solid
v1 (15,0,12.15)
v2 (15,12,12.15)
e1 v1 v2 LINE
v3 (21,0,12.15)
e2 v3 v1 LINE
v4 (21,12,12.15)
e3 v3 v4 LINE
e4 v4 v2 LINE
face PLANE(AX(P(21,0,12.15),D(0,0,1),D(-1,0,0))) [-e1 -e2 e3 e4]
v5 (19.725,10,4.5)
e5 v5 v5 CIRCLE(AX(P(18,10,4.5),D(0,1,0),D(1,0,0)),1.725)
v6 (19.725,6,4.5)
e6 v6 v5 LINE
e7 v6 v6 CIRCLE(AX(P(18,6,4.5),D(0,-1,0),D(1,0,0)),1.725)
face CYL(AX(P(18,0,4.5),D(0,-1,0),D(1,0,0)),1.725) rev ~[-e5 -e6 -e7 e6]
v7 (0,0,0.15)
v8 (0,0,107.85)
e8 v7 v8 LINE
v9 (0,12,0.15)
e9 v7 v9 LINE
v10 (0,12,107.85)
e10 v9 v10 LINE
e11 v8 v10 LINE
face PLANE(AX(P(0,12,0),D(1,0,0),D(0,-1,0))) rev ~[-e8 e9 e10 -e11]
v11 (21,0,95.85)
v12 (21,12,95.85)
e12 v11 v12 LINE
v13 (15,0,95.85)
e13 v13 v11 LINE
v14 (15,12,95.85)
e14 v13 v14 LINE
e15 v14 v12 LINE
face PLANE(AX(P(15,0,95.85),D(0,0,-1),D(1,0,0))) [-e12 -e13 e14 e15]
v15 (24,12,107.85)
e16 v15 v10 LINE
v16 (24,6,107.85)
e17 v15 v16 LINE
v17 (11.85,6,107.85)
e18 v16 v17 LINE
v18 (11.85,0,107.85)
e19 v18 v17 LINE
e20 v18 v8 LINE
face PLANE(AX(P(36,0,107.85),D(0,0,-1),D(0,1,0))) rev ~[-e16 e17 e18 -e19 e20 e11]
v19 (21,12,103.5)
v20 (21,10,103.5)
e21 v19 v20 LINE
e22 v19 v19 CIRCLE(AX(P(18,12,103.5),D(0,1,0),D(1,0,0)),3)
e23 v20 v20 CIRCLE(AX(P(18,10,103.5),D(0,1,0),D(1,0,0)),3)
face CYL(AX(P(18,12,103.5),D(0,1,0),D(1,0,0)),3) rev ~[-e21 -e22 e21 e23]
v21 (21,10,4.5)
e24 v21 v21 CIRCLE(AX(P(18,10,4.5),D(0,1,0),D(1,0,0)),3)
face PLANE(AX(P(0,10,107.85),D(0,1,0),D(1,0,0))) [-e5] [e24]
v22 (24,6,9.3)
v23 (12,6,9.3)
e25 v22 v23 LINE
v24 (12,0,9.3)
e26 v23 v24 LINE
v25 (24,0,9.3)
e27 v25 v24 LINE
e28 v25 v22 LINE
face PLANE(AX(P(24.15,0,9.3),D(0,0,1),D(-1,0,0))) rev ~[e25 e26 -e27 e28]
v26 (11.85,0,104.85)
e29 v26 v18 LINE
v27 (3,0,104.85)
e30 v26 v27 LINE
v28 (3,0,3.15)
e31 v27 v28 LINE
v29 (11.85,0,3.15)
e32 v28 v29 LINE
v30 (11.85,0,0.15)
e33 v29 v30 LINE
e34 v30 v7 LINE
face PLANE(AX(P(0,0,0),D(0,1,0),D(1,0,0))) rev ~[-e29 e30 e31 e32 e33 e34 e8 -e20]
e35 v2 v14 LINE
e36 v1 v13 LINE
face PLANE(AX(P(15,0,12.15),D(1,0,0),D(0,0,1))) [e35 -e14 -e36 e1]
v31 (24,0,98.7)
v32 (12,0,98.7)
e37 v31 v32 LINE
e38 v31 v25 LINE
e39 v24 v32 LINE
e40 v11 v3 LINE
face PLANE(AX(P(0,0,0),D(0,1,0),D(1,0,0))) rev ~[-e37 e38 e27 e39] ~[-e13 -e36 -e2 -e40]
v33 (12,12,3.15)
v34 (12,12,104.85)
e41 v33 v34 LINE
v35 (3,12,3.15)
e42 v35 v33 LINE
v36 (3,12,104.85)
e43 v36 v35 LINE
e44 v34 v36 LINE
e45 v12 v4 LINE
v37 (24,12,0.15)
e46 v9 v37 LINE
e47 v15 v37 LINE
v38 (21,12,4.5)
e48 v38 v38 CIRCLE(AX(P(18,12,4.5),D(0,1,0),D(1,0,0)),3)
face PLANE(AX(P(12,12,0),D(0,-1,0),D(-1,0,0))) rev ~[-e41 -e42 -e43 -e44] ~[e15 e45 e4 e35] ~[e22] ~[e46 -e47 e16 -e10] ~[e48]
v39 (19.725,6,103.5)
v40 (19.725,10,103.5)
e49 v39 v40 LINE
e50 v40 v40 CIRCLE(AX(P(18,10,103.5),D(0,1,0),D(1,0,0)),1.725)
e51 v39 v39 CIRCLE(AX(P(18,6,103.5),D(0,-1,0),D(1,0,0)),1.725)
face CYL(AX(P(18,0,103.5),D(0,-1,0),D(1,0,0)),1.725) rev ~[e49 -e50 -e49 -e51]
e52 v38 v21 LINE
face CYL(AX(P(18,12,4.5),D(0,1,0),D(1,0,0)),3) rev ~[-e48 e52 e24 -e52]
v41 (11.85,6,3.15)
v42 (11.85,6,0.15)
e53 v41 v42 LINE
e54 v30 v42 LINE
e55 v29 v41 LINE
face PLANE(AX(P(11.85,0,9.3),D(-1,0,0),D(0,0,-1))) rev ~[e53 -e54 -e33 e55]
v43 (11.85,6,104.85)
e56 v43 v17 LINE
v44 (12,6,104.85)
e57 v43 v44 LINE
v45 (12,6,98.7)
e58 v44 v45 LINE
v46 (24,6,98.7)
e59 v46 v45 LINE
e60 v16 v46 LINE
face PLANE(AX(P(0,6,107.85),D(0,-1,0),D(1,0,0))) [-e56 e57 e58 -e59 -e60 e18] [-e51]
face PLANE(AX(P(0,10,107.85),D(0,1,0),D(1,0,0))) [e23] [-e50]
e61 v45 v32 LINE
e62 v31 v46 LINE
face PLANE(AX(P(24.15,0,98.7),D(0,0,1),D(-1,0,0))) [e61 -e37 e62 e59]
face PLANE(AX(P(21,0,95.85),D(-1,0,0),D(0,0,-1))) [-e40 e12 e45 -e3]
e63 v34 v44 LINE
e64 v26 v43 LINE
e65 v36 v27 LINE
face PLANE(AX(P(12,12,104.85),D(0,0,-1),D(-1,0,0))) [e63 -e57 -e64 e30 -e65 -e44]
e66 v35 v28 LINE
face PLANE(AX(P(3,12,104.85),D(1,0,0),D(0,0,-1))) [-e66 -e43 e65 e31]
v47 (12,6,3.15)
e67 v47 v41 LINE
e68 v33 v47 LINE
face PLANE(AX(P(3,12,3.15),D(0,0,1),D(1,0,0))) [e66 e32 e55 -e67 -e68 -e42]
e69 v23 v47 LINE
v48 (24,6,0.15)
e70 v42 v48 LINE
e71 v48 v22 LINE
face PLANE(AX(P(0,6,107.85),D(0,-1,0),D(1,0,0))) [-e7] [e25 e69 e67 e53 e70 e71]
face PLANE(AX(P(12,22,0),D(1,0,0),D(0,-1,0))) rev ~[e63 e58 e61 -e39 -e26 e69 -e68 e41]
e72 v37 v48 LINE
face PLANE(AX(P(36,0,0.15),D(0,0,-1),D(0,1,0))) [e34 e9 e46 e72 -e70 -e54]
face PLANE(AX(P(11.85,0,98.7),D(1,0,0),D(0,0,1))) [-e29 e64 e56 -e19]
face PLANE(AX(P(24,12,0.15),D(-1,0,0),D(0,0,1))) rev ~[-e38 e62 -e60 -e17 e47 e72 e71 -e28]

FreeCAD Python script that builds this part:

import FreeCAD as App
import Part
import Sketcher

V = App.Vector
Q = App.Units.Quantity


def add_polygon(sketch, points):
    """Adds a closed chain of lines whose ends are joined by coincident constraints."""
    first, n = sketch.GeometryCount, len(points)
    for a, b in zip(points, points[1:] + points[:1]):
        sketch.addGeometry(Part.LineSegment(App.Vector(*a, 0), App.Vector(*b, 0)), False)
    for i in range(n):
        sketch.addConstraint(Sketcher.Constraint("Coincident", first + i, 2, first + (i + 1) % n, 1))

doc = App.newDocument("Part")
params = doc.addObject("Spreadsheet::Sheet", "Params")
for row, (alias, value) in enumerate([
    ("sketch1_width", "36 mm"),
    ("sketch1_height", "10 mm"),
    ("pad1_length", "108 mm"),
    ("sketch2_diameter", "3.45 mm"),
    ("pocket1_length", "20 mm"),
    ("sketch3_diameter", "6 mm"),
    ("pocket2_length", "2 mm"),
    ("sketch4_width", "12 mm"),
    ("sketch4_height", "0.15 mm"),
    ("sketch5_height", "0.15 mm"),
    ("sketch5_width", "10 mm"),
    ("sketch6_height", "9.15 mm"),
    ("sketch6_width", "12.3 mm"),
    ("pocket5_length", "6 mm"),
    ("sketch7_width", "6 mm"),
    ("sketch7_height", "83.7 mm"),
    ("sketch8_width", "9 mm"),
    ("sketch8_height", "101.7 mm"),
    ("sketch9_width", "10 mm"),
    ("sketch9_height", "107.7 mm"),
    ("sketch10_diameter", "6 mm"),
    ("sketch10_diameter2", "3.45 mm"),
    ("pocket9_length", "2 mm"),
    ("sketch11_width", "12 mm"),
    ("sketch11_height", "107.7 mm"),
], start=1):
    params.set(f"A{row}", alias)
    params.set(f"B{row}", "=" + value)
    params.setAlias(f"B{row}", alias)

body = doc.addObject("PartDesign::Body", "Body")

# Sketch on XY plane
sketch1 = doc.addObject("Sketcher::SketchObject", "Sketch")
body.addObject(sketch1)
sketch1.AttachmentSupport = (doc.XY_Plane, [""])
sketch1.MapMode = "FlatFace"
add_polygon(sketch1, [(0, 12), (0, 0), (36, 0), (36, 12), (24, 12), (24, 22), (12, 22), (12, 12)])  # lines 0-7
sketch1.addConstraint(Sketcher.Constraint("Vertical", 0))
sketch1.addConstraint(Sketcher.Constraint("Horizontal", 1))
sketch1.addConstraint(Sketcher.Constraint("Vertical", 2))
sketch1.addConstraint(Sketcher.Constraint("Horizontal", 3))
sketch1.addConstraint(Sketcher.Constraint("Vertical", 4))
sketch1.addConstraint(Sketcher.Constraint("Horizontal", 5))
sketch1.addConstraint(Sketcher.Constraint("Vertical", 6))
sketch1.addConstraint(Sketcher.Constraint("Horizontal", 7))
sketch1.addConstraint(Sketcher.Constraint("Coincident", 0, 2, -1, 1))
sketch1.addConstraint(Sketcher.Constraint("Horizontal", 3, 2, 6, 2))
sketch1.addConstraint(Sketcher.Constraint("Equal", 3, 5))
sketch1.addConstraint(Sketcher.Constraint("Equal", 5, 7))
sketch1.addConstraint(Sketcher.Constraint("Equal", 7, 0))
sketch1.addConstraint(Sketcher.Constraint("DistanceX", 1, 1, 1, 2, Q("36 mm")))
sketch1.addConstraint(Sketcher.Constraint("DistanceY", 4, 1, 4, 2, Q("10 mm")))
sketch1.setExpression("Constraints[21]", "Params.sketch1_width")
sketch1.setExpression("Constraints[22]", "Params.sketch1_height")
pad1 = doc.addObject("PartDesign::Pad", "Pad")
body.addObject(pad1)
pad1.Profile = sketch1
pad1.setExpression("Length", "Params.pad1_length")

# Sketch on XZ plane
sketch2 = doc.addObject("Sketcher::SketchObject", "Sketch001")
body.addObject(sketch2)
sketch2.AttachmentSupport = (doc.XZ_Plane, [""])
sketch2.MapMode = "FlatFace"
sketch2.addGeometry(Part.Circle(V(18, 4.5, 0), V(0, 0, 1), 1.725), False)
sketch2.addGeometry(Part.Circle(V(18, 103.5, 0), V(0, 0, 1), 1.725), False)
sketch2.addConstraint(Sketcher.Constraint("Equal", 0, 1))
sketch2.addConstraint(Sketcher.Constraint("Vertical", 0, 3, 1, 3))
sketch2.addConstraint(Sketcher.Constraint("Diameter", 0, Q("3.45 mm")))
sketch2.addConstraint(Sketcher.Constraint("DistanceX", -1, 1, 0, 3, Q("18 mm")))
sketch2.addConstraint(Sketcher.Constraint("DistanceY", -1, 1, 0, 3, Q("4.5 mm")))
sketch2.addConstraint(Sketcher.Constraint("DistanceY", 0, 3, 1, 3, Q("99 mm")))
sketch2.setExpression("Constraints[2]", "Params.sketch2_diameter")
pocket1 = doc.addObject("PartDesign::Pocket", "Pocket")
body.addObject(pocket1)
pocket1.Profile = sketch2
pocket1.setExpression("Length", "Params.pocket1_length")

# Sketch on XZ plane
sketch3 = doc.addObject("Sketcher::SketchObject", "Sketch002")
body.addObject(sketch3)
sketch3.AttachmentSupport = (doc.XZ_Plane, [""])
sketch3.MapMode = "FlatFace"
sketch3.AttachmentOffset = App.Placement(V(0, 0, -22), App.Rotation())
sketch3.addGeometry(Part.Circle(V(18, 4.5, 0), V(0, 0, 1), 3), False)
sketch3.addGeometry(Part.Circle(V(18, 103.5, 0), V(0, 0, 1), 3), False)
sketch3.addConstraint(Sketcher.Constraint("Equal", 0, 1))
sketch3.addConstraint(Sketcher.Constraint("Vertical", 0, 3, 1, 3))
sketch3.addConstraint(Sketcher.Constraint("Diameter", 0, Q("6 mm")))
sketch3.addConstraint(Sketcher.Constraint("DistanceX", -1, 1, 0, 3, Q("18 mm")))
sketch3.addConstraint(Sketcher.Constraint("DistanceY", 0, 3, 1, 3, Q("99 mm")))
sketch3.addConstraint(Sketcher.Constraint("DistanceY", -1, 1, 0, 3, Q("4.5 mm")))
sketch3.setExpression("Constraints[2]", "Params.sketch3_diameter")
pocket2 = doc.addObject("PartDesign::Pocket", "Pocket001")
body.addObject(pocket2)
pocket2.Profile = sketch3
pocket2.setExpression("Length", "Params.pocket2_length")
pocket2.Reversed = True

# Sketch on YZ plane
sketch4 = doc.addObject("Sketcher::SketchObject", "Sketch003")
body.addObject(sketch4)
sketch4.AttachmentSupport = (doc.YZ_Plane, [""])
sketch4.MapMode = "FlatFace"
sketch4.AttachmentOffset = App.Placement(V(0, 0, 36), App.Rotation())
add_polygon(sketch4, [(12, 108), (0, 108), (0, 107.85), (12, 107.85)])  # lines 0-3
add_polygon(sketch4, [(12, 0.15), (0, 0.15), (0, 0), (12, 0)])  # lines 4-7
sketch4.addConstraint(Sketcher.Constraint("Horizontal", 0))
sketch4.addConstraint(Sketcher.Constraint("Vertical", 1))
sketch4.addConstraint(Sketcher.Constraint("Horizontal", 2))
sketch4.addConstraint(Sketcher.Constraint("Vertical", 3))
sketch4.addConstraint(Sketcher.Constraint("Horizontal", 4))
sketch4.addConstraint(Sketcher.Constraint("Vertical", 5))
sketch4.addConstraint(Sketcher.Constraint("Horizontal", 6))
sketch4.addConstraint(Sketcher.Constraint("Vertical", 7))
sketch4.addConstraint(Sketcher.Constraint("Coincident", 5, 2, -1, 1))
sketch4.addConstraint(Sketcher.Constraint("PointOnObject", 0, 2, -2))
sketch4.addConstraint(Sketcher.Constraint("Vertical", 3, 2, 6, 2))
sketch4.addConstraint(Sketcher.Constraint("Equal", 3, 5))
sketch4.addConstraint(Sketcher.Constraint("DistanceX", 0, 2, 0, 1, Q("12 mm")))
sketch4.addConstraint(Sketcher.Constraint("DistanceY", 1, 2, 1, 1, Q("0.15 mm")))
sketch4.addConstraint(Sketcher.Constraint("DistanceY", -1, 1, 0, 2, Q("108 mm")))
sketch4.setExpression("Constraints[20]", "Params.sketch4_width")
sketch4.setExpression("Constraints[21]", "Params.sketch4_height")
pocket3 = doc.addObject("PartDesign::Pocket", "Pocket002")
body.addObject(pocket3)
pocket3.Profile = sketch4
pocket3.Type = "ThroughAll"

# Sketch on YZ plane
sketch5 = doc.addObject("Sketcher::SketchObject", "Sketch004")
body.addObject(sketch5)
sketch5.AttachmentSupport = (doc.YZ_Plane, [""])
sketch5.MapMode = "FlatFace"
sketch5.AttachmentOffset = App.Placement(V(0, 0, 24), App.Rotation())
add_polygon(sketch5, [(12, 0.15), (12, 0), (22, 0), (22, 0.15)])  # lines 0-3
add_polygon(sketch5, [(12, 107.85), (22, 107.85), (22, 108), (12, 108)])  # lines 4-7
sketch5.addConstraint(Sketcher.Constraint("Vertical", 0))
sketch5.addConstraint(Sketcher.Constraint("Horizontal", 1))
sketch5.addConstraint(Sketcher.Constraint("Vertical", 2))
sketch5.addConstraint(Sketcher.Constraint("Horizontal", 3))
sketch5.addConstraint(Sketcher.Constraint("Horizontal", 4))
sketch5.addConstraint(Sketcher.Constraint("Vertical", 5))
sketch5.addConstraint(Sketcher.Constraint("Horizontal", 6))
sketch5.addConstraint(Sketcher.Constraint("Vertical", 7))
sketch5.addConstraint(Sketcher.Constraint("PointOnObject", 0, 2, -1))
sketch5.addConstraint(Sketcher.Constraint("Vertical", 2, 2, 4, 2))
sketch5.addConstraint(Sketcher.Constraint("Vertical", 3, 2, 6, 2))
sketch5.addConstraint(Sketcher.Constraint("Equal", 2, 5))
sketch5.addConstraint(Sketcher.Constraint("DistanceY", 0, 2, 0, 1, Q("0.15 mm")))
sketch5.addConstraint(Sketcher.Constraint("DistanceX", 1, 1, 1, 2, Q("10 mm")))
sketch5.addConstraint(Sketcher.Constraint("DistanceX", -1, 1, 0, 2, Q("12 mm")))
sketch5.addConstraint(Sketcher.Constraint("DistanceY", -1, 1, 5, 2, Q("108 mm")))
sketch5.setExpression("Constraints[20]", "Params.sketch5_height")
sketch5.setExpression("Constraints[21]", "Params.sketch5_width")
pocket4 = doc.addObject("PartDesign::Pocket", "Pocket003")
body.addObject(pocket4)
pocket4.Profile = sketch5
pocket4.Type = "ThroughAll"

# Sketch on XZ plane
sketch6 = doc.addObject("Sketcher::SketchObject", "Sketch005")
body.addObject(sketch6)
sketch6.AttachmentSupport = (doc.XZ_Plane, [""])
sketch6.MapMode = "FlatFace"
add_polygon(sketch6, [(11.85, 9.3), (11.85, 0.15), (24.15, 0.15), (24.15, 9.3)])  # lines 0-3
add_polygon(sketch6, [(24.15, 107.85), (11.85, 107.85), (11.85, 98.7), (24.15, 98.7)])  # lines 4-7
sketch6.addConstraint(Sketcher.Constraint("Vertical", 0))
sketch6.addConstraint(Sketcher.Constraint("Horizontal", 1))
sketch6.addConstraint(Sketcher.Constraint("Vertical", 2))
sketch6.addConstraint(Sketcher.Constraint("Horizontal", 3))
sketch6.addConstraint(Sketcher.Constraint("Horizontal", 4))
sketch6.addConstraint(Sketcher.Constraint("Vertical", 5))
sketch6.addConstraint(Sketcher.Constraint("Horizontal", 6))
sketch6.addConstraint(Sketcher.Constraint("Vertical", 7))
sketch6.addConstraint(Sketcher.Constraint("Vertical", 3, 2, 4, 2))
sketch6.addConstraint(Sketcher.Constraint("Vertical", 2, 2, 6, 2))
sketch6.addConstraint(Sketcher.Constraint("Equal", 2, 5))
sketch6.addConstraint(Sketcher.Constraint("DistanceY", 0, 2, 0, 1, Q("9.15 mm")))
sketch6.addConstraint(Sketcher.Constraint("DistanceX", -1, 1, 0, 2, Q("11.85 mm")))
sketch6.addConstraint(Sketcher.Constraint("DistanceX", 1, 1, 1, 2, Q("12.3 mm")))
sketch6.addConstraint(Sketcher.Constraint("DistanceY", -1, 1, 2, 2, Q("9.3 mm")))
sketch6.addConstraint(Sketcher.Constraint("DistanceY", -1, 1, 5, 2, Q("98.7 mm")))
sketch6.setExpression("Constraints[19]", "Params.sketch6_height")
sketch6.setExpression("Constraints[21]", "Params.sketch6_width")
pocket5 = doc.addObject("PartDesign::Pocket", "Pocket004")
body.addObject(pocket5)
pocket5.Profile = sketch6
pocket5.setExpression("Length", "Params.pocket5_length")

# Sketch on XZ plane
sketch7 = doc.addObject("Sketcher::SketchObject", "Sketch006")
body.addObject(sketch7)
sketch7.AttachmentSupport = (doc.XZ_Plane, [""])
sketch7.MapMode = "FlatFace"
add_polygon(sketch7, [(21, 95.85), (15, 95.85), (15, 12.15), (21, 12.15)])  # lines 0-3
sketch7.addConstraint(Sketcher.Constraint("Horizontal", 0))
sketch7.addConstraint(Sketcher.Constraint("Vertical", 1))
sketch7.addConstraint(Sketcher.Constraint("Horizontal", 2))
sketch7.addConstraint(Sketcher.Constraint("Vertical", 3))
sketch7.addConstraint(Sketcher.Constraint("DistanceX", 0, 2, 0, 1, Q("6 mm")))
sketch7.addConstraint(Sketcher.Constraint("DistanceY", 1, 2, 1, 1, Q("83.7 mm")))
sketch7.addConstraint(Sketcher.Constraint("DistanceX", -1, 1, 0, 2, Q("15 mm")))
sketch7.addConstraint(Sketcher.Constraint("DistanceY", -1, 1, 0, 2, Q("95.85 mm")))
sketch7.setExpression("Constraints[8]", "Params.sketch7_width")
sketch7.setExpression("Constraints[9]", "Params.sketch7_height")
pocket6 = doc.addObject("PartDesign::Pocket", "Pocket005")
body.addObject(pocket6)
pocket6.Profile = sketch7
pocket6.Type = "ThroughAll"

# Sketch on XZ plane
sketch8 = doc.addObject("Sketcher::SketchObject", "Sketch007")
body.addObject(sketch8)
sketch8.AttachmentSupport = (doc.XZ_Plane, [""])
sketch8.MapMode = "FlatFace"
sketch8.AttachmentOffset = App.Placement(V(0, 0, -12), App.Rotation())
add_polygon(sketch8, [(24, 104.85), (33, 104.85), (33, 3.15), (24, 3.15)])  # lines 0-3
add_polygon(sketch8, [(3, 104.85), (12, 104.85), (12, 3.15), (3, 3.15)])  # lines 4-7
sketch8.addConstraint(Sketcher.Constraint("Horizontal", 0))
sketch8.addConstraint(Sketcher.Constraint("Vertical", 1))
sketch8.addConstraint(Sketcher.Constraint("Horizontal", 2))
sketch8.addConstraint(Sketcher.Constraint("Vertical", 3))
sketch8.addConstraint(Sketcher.Constraint("Horizontal", 4))
sketch8.addConstraint(Sketcher.Constraint("Vertical", 5))
sketch8.addConstraint(Sketcher.Constraint("Horizontal", 6))
sketch8.addConstraint(Sketcher.Constraint("Vertical", 7))
sketch8.addConstraint(Sketcher.Constraint("Horizontal", 3, 2, 4, 2))
sketch8.addConstraint(Sketcher.Constraint("Horizontal", 2, 2, 5, 2))
sketch8.addConstraint(Sketcher.Constraint("Equal", 2, 4))
sketch8.addConstraint(Sketcher.Constraint("DistanceX", -1, 1, 6, 2, Q("3 mm")))
sketch8.addConstraint(Sketcher.Constraint("DistanceX", 0, 1, 0, 2, Q("9 mm")))
sketch8.addConstraint(Sketcher.Constraint("DistanceY", 1, 2, 1, 1, Q("101.7 mm")))
sketch8.addConstraint(Sketcher.Constraint("DistanceX", -1, 1, 0, 2, Q("33 mm")))
sketch8.addConstraint(Sketcher.Constraint("DistanceY", -1, 1, 0, 2, Q("104.85 mm")))
sketch8.setExpression("Constraints[20]", "Params.sketch8_width")
sketch8.setExpression("Constraints[21]", "Params.sketch8_height")
pocket7 = doc.addObject("PartDesign::Pocket", "Pocket006")
body.addObject(pocket7)
pocket7.Profile = sketch8
pocket7.Type = "ThroughAll"
pocket7.Reversed = True

# Sketch on YZ plane
sketch9 = doc.addObject("Sketcher::SketchObject", "Sketch008")
body.addObject(sketch9)
sketch9.AttachmentSupport = (doc.YZ_Plane, [""])
sketch9.MapMode = "FlatFace"
sketch9.AttachmentOffset = App.Placement(V(0, 0, 24), App.Rotation())
add_polygon(sketch9, [(22, 107.85), (12, 107.85), (12, 0.15), (22, 0.15)])  # lines 0-3
sketch9.addConstraint(Sketcher.Constraint("Horizontal", 0))
sketch9.addConstraint(Sketcher.Constraint("Vertical", 1))
sketch9.addConstraint(Sketcher.Constraint("Horizontal", 2))
sketch9.addConstraint(Sketcher.Constraint("Vertical", 3))
sketch9.addConstraint(Sketcher.Constraint("DistanceX", 0, 2, 0, 1, Q("10 mm")))
sketch9.addConstraint(Sketcher.Constraint("DistanceY", 1, 2, 1, 1, Q("107.7 mm")))
sketch9.addConstraint(Sketcher.Constraint("DistanceX", -1, 1, 0, 2, Q("12 mm")))
sketch9.addConstraint(Sketcher.Constraint("DistanceY", -1, 1, 0, 2, Q("107.85 mm")))
sketch9.setExpression("Constraints[8]", "Params.sketch9_width")
sketch9.setExpression("Constraints[9]", "Params.sketch9_height")
pocket8 = doc.addObject("PartDesign::Pocket", "Pocket007")
body.addObject(pocket8)
pocket8.Profile = sketch9
pocket8.Type = "ThroughAll"

# Sketch on XZ plane
sketch10 = doc.addObject("Sketcher::SketchObject", "Sketch009")
body.addObject(sketch10)
sketch10.AttachmentSupport = (doc.XZ_Plane, [""])
sketch10.MapMode = "FlatFace"
sketch10.AttachmentOffset = App.Placement(V(0, 0, -12), App.Rotation())
sketch10.addGeometry(Part.Circle(V(18, 4.5, 0), V(0, 0, 1), 3), False)
sketch10.addGeometry(Part.Circle(V(18, 4.5, 0), V(0, 0, 1), 1.725), False)
sketch10.addGeometry(Part.Circle(V(18, 103.5, 0), V(0, 0, 1), 3), False)
sketch10.addGeometry(Part.Circle(V(18, 103.5, 0), V(0, 0, 1), 1.725), False)
sketch10.addConstraint(Sketcher.Constraint("Coincident", 1, 3, 0, 3))
sketch10.addConstraint(Sketcher.Constraint("Coincident", 3, 3, 2, 3))
sketch10.addConstraint(Sketcher.Constraint("Equal", 0, 2))
sketch10.addConstraint(Sketcher.Constraint("Equal", 1, 3))
sketch10.addConstraint(Sketcher.Constraint("Vertical", 1, 3, 2, 3))
sketch10.addConstraint(Sketcher.Constraint("Diameter", 0, Q("6 mm")))
sketch10.addConstraint(Sketcher.Constraint("Diameter", 1, Q("3.45 mm")))
sketch10.addConstraint(Sketcher.Constraint("DistanceX", -1, 1, 0, 3, Q("18 mm")))
sketch10.addConstraint(Sketcher.Constraint("DistanceY", 0, 3, 2, 3, Q("99 mm")))
sketch10.addConstraint(Sketcher.Constraint("DistanceY", -1, 1, 0, 3, Q("4.5 mm")))
sketch10.setExpression("Constraints[5]", "Params.sketch10_diameter")
sketch10.setExpression("Constraints[6]", "Params.sketch10_diameter2")
pocket9 = doc.addObject("PartDesign::Pocket", "Pocket008")
body.addObject(pocket9)
pocket9.Profile = sketch10
pocket9.setExpression("Length", "Params.pocket9_length")
pocket9.Reversed = True

# Sketch on XZ plane
sketch11 = doc.addObject("Sketcher::SketchObject", "Sketch010")
body.addObject(sketch11)
sketch11.AttachmentSupport = (doc.XZ_Plane, [""])
sketch11.MapMode = "FlatFace"
sketch11.AttachmentOffset = App.Placement(V(0, 0, -12), App.Rotation())
add_polygon(sketch11, [(36, 107.85), (36, 0.15), (24, 0.15), (24, 107.85)])  # lines 0-3
sketch11.addConstraint(Sketcher.Constraint("Vertical", 0))
sketch11.addConstraint(Sketcher.Constraint("Horizontal", 1))
sketch11.addConstraint(Sketcher.Constraint("Vertical", 2))
sketch11.addConstraint(Sketcher.Constraint("Horizontal", 3))
sketch11.addConstraint(Sketcher.Constraint("DistanceX", 1, 2, 1, 1, Q("12 mm")))
sketch11.addConstraint(Sketcher.Constraint("DistanceY", 0, 2, 0, 1, Q("107.7 mm")))
sketch11.addConstraint(Sketcher.Constraint("DistanceX", -1, 1, 0, 2, Q("36 mm")))
sketch11.addConstraint(Sketcher.Constraint("DistanceY", -1, 1, 0, 2, Q("0.15 mm")))
sketch11.setExpression("Constraints[8]", "Params.sketch11_width")
sketch11.setExpression("Constraints[9]", "Params.sketch11_height")
pocket10 = doc.addObject("PartDesign::Pocket", "Pocket009")
body.addObject(pocket10)
pocket10.Profile = sketch11
pocket10.Type = "ThroughAll"
pocket10.Reversed = True

doc.recompute()
